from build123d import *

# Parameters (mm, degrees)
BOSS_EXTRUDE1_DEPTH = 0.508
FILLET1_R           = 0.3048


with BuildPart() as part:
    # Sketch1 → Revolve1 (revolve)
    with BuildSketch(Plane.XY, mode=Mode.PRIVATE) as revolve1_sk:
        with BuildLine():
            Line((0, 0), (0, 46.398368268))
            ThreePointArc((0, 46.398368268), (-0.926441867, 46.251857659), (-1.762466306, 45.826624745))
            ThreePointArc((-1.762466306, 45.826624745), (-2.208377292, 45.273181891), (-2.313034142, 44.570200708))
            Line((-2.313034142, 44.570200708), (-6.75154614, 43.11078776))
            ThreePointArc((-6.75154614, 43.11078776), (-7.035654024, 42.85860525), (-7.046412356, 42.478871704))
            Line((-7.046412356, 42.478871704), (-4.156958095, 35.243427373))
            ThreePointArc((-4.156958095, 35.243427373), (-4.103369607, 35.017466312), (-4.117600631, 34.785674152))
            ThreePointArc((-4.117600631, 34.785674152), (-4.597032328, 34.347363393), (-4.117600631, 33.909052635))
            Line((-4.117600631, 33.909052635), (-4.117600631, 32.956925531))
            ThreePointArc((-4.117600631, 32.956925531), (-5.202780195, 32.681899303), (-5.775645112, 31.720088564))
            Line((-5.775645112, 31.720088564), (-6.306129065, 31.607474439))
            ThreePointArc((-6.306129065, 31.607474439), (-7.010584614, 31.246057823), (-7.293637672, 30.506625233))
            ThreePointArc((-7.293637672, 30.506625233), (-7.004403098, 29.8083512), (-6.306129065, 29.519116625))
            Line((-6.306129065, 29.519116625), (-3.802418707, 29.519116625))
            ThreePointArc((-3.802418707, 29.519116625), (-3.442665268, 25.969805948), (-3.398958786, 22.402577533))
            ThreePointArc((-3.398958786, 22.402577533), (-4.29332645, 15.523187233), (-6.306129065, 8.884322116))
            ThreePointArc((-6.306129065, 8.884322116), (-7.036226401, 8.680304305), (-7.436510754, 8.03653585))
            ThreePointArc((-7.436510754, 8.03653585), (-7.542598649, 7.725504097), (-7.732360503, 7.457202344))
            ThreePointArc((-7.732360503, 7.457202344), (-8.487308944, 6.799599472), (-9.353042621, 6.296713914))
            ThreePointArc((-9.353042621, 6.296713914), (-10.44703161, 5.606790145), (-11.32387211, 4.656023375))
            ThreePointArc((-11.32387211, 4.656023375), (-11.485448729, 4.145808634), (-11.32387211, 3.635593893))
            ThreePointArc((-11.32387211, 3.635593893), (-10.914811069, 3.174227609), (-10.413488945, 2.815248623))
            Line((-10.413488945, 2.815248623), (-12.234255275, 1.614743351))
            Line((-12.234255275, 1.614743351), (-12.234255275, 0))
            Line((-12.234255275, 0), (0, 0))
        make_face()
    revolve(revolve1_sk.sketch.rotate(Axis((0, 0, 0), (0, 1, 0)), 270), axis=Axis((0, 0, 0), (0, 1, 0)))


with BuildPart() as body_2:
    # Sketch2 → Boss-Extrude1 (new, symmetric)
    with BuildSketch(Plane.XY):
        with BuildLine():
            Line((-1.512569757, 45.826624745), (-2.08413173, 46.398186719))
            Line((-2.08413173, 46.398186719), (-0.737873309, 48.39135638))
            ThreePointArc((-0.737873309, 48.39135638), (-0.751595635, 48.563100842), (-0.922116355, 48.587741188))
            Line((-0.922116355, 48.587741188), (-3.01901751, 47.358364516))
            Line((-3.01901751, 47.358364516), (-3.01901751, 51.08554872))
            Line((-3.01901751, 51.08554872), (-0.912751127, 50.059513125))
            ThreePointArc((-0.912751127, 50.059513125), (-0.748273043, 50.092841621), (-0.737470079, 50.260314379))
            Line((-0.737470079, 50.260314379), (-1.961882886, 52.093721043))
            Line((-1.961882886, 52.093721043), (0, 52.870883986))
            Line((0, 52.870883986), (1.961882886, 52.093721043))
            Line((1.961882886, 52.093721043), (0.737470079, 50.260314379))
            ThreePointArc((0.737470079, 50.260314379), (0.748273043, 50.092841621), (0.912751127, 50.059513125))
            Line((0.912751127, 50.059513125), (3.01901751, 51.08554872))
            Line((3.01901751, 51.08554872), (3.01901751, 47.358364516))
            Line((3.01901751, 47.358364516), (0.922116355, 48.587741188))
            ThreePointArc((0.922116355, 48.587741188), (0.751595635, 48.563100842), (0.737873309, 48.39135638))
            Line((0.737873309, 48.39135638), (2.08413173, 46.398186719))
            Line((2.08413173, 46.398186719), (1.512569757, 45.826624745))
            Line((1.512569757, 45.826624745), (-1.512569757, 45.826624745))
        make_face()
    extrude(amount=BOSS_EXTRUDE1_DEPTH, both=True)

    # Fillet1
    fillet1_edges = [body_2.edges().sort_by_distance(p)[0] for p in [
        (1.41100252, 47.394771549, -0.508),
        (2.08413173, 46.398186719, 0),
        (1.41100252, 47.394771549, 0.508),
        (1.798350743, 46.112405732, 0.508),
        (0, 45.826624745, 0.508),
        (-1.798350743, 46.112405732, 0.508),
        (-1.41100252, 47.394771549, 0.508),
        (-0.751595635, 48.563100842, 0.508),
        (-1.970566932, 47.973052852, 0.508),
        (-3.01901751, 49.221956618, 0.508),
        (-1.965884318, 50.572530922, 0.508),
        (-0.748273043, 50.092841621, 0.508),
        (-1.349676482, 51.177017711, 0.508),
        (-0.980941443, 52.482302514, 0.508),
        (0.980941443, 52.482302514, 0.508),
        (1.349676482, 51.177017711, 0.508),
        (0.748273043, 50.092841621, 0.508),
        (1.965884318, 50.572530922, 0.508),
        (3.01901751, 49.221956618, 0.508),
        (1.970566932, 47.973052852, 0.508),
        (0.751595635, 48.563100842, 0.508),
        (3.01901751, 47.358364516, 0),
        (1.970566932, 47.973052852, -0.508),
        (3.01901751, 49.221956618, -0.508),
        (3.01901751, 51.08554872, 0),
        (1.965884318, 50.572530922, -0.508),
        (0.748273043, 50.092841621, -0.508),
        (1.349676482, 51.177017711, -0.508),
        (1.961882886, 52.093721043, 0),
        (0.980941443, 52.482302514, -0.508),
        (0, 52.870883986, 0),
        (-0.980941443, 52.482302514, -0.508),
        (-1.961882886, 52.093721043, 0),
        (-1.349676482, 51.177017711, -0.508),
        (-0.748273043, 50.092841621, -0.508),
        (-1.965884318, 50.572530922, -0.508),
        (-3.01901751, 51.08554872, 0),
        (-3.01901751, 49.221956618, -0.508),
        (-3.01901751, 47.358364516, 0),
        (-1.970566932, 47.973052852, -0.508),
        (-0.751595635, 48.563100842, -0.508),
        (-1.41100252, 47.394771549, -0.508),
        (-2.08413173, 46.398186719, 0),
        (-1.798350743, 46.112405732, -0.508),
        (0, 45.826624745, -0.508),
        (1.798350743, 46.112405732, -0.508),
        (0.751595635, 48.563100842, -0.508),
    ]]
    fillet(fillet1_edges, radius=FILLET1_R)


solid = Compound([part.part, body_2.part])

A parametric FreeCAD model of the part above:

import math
import FreeCAD as App
import Part
import Sketcher

V = App.Vector
Q = App.Units.Quantity


def edges_at(feature, points):
    """Names of the edges that pass closest to the given points."""
    edges = feature.Shape.Edges
    near = lambda p: min(range(len(edges)), key=lambda i: edges[i].distToShape(Part.Vertex(*p))[0])
    return sorted({f"Edge{near(p) + 1}" for p in points})

doc = App.newDocument("Part")
body = doc.addObject("PartDesign::Body", "Body")

sketch1 = doc.addObject("Sketcher::SketchObject", "Sketch")
body.addObject(sketch1)
sketch1.AttachmentSupport = (doc.XY_Plane, [""])
sketch1.MapMode = "FlatFace"
sketch1.addGeometry(Part.LineSegment(V(0, 0, 0), V(0, 46.398368, 0)), False)
sketch1.addGeometry(Part.ArcOfCircle(Part.Circle(V(0, 43.395992, 0), V(0, 0, 1), 3.002376), math.radians(90), math.radians(125.946094)), False)
sketch1.addGeometry(Part.ArcOfCircle(Part.Circle(V(-0.966593, 44.729029, 0), V(0, 0, 1), 1.355776), math.radians(125.946094), math.radians(186.727625)), False)
sketch1.addGeometry(Part.LineSegment(V(-2.313034, 44.570201, 0), V(-6.751546, 43.110788, 0)), False)
sketch1.addGeometry(Part.ArcOfCircle(Part.Circle(V(-6.602109, 42.656303, 0), V(0, 0, 1), 0.478422), math.radians(108.201217), math.radians(201.769157)), False)
sketch1.addGeometry(Part.LineSegment(V(-7.046412, 42.478872, 0), V(-4.156958, 35.243427, 0)), False)
sketch1.addGeometry(Part.ArcOfCircle(Part.Circle(V(-4.892735, 34.949597, 0), V(0, 0, 1), 0.792278), math.radians(-11.940786), math.radians(21.769158)), False)
sketch1.addGeometry(Part.ArcOfCircle(Part.Circle(V(-4.156958, 34.347363, 0), V(0, 0, 1), 0.440074), math.radians(84.868971), math.radians(275.131029)), False)
sketch1.addGeometry(Part.LineSegment(V(-4.117601, 33.909053, 0), V(-4.117601, 32.956926, 0)), False)
sketch1.addGeometry(Part.ArcOfCircle(Part.Circle(V(-4.328204, 31.509485, 0), V(0, 0, 1), 1.462682), math.radians(81.721513), math.radians(171.721513)), False)
sketch1.addGeometry(Part.LineSegment(V(-5.775645, 31.720089, 0), V(-6.306129, 31.607474, 0)), False)
sketch1.addGeometry(Part.ArcOfCircle(Part.Circle(V(-6.186284, 30.506625, 0), V(0, 0, 1), 1.107353), math.radians(96.213086), math.radians(180)), False)
sketch1.addGeometry(Part.ArcOfCircle(Part.Circle(V(-6.306129, 30.506625, 0), V(0, 0, 1), 0.987509), math.radians(180), math.radians(270)), False)
sketch1.addGeometry(Part.LineSegment(V(-6.306129, 29.519117, 0), V(-3.802419, 29.519117, 0)), False)
sketch1.addGeometry(Part.ArcOfCircle(Part.Circle(V(-43.583073, 23.694115, 0), V(0, 0, 1), 40.204864), math.radians(-1.840881), math.radians(8.330505)), False)
sketch1.addGeometry(Part.ArcOfCircle(Part.Circle(V(-45.420914, 24.367886, 0), V(0, 0, 1), 42.067888), math.radians(-21.596106), math.radians(-2.677693)), False)
sketch1.addGeometry(Part.ArcOfCircle(Part.Circle(V(-6.408963, 7.843953, 0), V(0, 0, 1), 1.045439), math.radians(84.354995), math.radians(169.3848)), False)
sketch1.addGeometry(Part.ArcOfCircle(Part.Circle(V(-8.5663, 8.24828, 0), V(0, 0, 1), 1.149461), math.radians(-43.489112), math.radians(-10.6152)), False)
sketch1.addGeometry(Part.ArcOfCircle(Part.Circle(V(-11.554069, 11.082488, 0), V(0, 0, 1), 5.267651), math.radians(-65.30182), math.radians(-43.489112)), False)
sketch1.addGeometry(Part.ArcOfCircle(Part.Circle(V(-7.293638, 1.818872, 0), V(0, 0, 1), 4.928714), math.radians(114.69818), math.radians(144.855723)), False)
sketch1.addGeometry(Part.ArcOfCircle(Part.Circle(V(-10.599101, 4.145809, 0), V(0, 0, 1), 0.886348), math.radians(144.855723), math.radians(215.144277)), False)
sketch1.addGeometry(Part.ArcOfCircle(Part.Circle(V(-9.068208, 5.223507, 0), V(0, 0, 1), 2.75853), math.radians(-144.855723), math.radians(-119.188235)), False)
sketch1.addGeometry(Part.LineSegment(V(-10.413489, 2.815249, 0), V(-12.234255, 1.614743, 0)), False)
sketch1.addGeometry(Part.LineSegment(V(-12.234255, 1.614743, 0), V(-12.234255, 0, 0)), False)
sketch1.addGeometry(Part.LineSegment(V(-12.234255, 0, 0), V(0, 0, 0)), False)
sketch1.addConstraint(Sketcher.Constraint("Coincident", 0, 2, 1, 1))
sketch1.addConstraint(Sketcher.Constraint("Coincident", 1, 2, 2, 1))
sketch1.addConstraint(Sketcher.Constraint("Coincident", 2, 2, 3, 1))
sketch1.addConstraint(Sketcher.Constraint("Coincident", 3, 2, 4, 1))
sketch1.addConstraint(Sketcher.Constraint("Coincident", 4, 2, 5, 1))
sketch1.addConstraint(Sketcher.Constraint("Coincident", 5, 2, 6, 2))
sketch1.addConstraint(Sketcher.Constraint("Coincident", 6, 1, 7, 1))
sketch1.addConstraint(Sketcher.Constraint("Coincident", 7, 2, 8, 1))
sketch1.addConstraint(Sketcher.Constraint("Coincident", 8, 2, 9, 1))
sketch1.addConstraint(Sketcher.Constraint("Coincident", 9, 2, 10, 1))
sketch1.addConstraint(Sketcher.Constraint("Coincident", 10, 2, 11, 1))
sketch1.addConstraint(Sketcher.Constraint("Coincident", 11, 2, 12, 1))
sketch1.addConstraint(Sketcher.Constraint("Coincident", 12, 2, 13, 1))
sketch1.addConstraint(Sketcher.Constraint("Coincident", 13, 2, 14, 2))
sketch1.addConstraint(Sketcher.Constraint("Coincident", 14, 1, 15, 2))
sketch1.addConstraint(Sketcher.Constraint("Coincident", 15, 1, 16, 1))
sketch1.addConstraint(Sketcher.Constraint("Coincident", 16, 2, 17, 2))
sketch1.addConstraint(Sketcher.Constraint("Coincident", 17, 1, 18, 2))
sketch1.addConstraint(Sketcher.Constraint("Coincident", 18, 1, 19, 1))
sketch1.addConstraint(Sketcher.Constraint("Coincident", 19, 2, 20, 1))
sketch1.addConstraint(Sketcher.Constraint("Coincident", 20, 2, 21, 1))
sketch1.addConstraint(Sketcher.Constraint("Coincident", 21, 2, 22, 1))
sketch1.addConstraint(Sketcher.Constraint("Coincident", 22, 2, 23, 1))
sketch1.addConstraint(Sketcher.Constraint("Coincident", 23, 2, 24, 1))
sketch1.addConstraint(Sketcher.Constraint("Coincident", 24, 2, 0, 1))
sketch1.addConstraint(Sketcher.Constraint("Vertical", 0))
sketch1.addConstraint(Sketcher.Constraint("Vertical", 8))
sketch1.addConstraint(Sketcher.Constraint("Horizontal", 13))
sketch1.addConstraint(Sketcher.Constraint("Vertical", 23))
sketch1.addConstraint(Sketcher.Constraint("Horizontal", 24))
sketch1.addConstraint(Sketcher.Constraint("Coincident", 24, 2, -1, 1))
sketch1.addConstraint(Sketcher.Constraint("PointOnObject", 1, 3, -2))
sketch1.addConstraint(Sketcher.Constraint("Radius", 9, Q("1.462682 mm")))
sketch1.addConstraint(Sketcher.Constraint("Radius", 12, Q("0.987509 mm")))
sketch1.addConstraint(Sketcher.Constraint("Radius", 16, Q("1.045439 mm")))
sketch1.addConstraint(Sketcher.Constraint("Radius", 17, Q("1.149461 mm")))
sketch1.addConstraint(Sketcher.Constraint("Radius", 18, Q("5.267651 mm")))
sketch1.addConstraint(Sketcher.Constraint("Radius", 21, Q("2.75853 mm")))
sketch1.addConstraint(Sketcher.Constraint("Radius", 1, Q("3.002376 mm")))
sketch1.addConstraint(Sketcher.Constraint("Radius", 2, Q("1.355776 mm")))
sketch1.addConstraint(Sketcher.Constraint("Radius", 4, Q("0.478422 mm")))
sketch1.addConstraint(Sketcher.Constraint("Radius", 6, Q("0.792278 mm")))
sketch1.addConstraint(Sketcher.Constraint("Radius", 7, Q("0.440074 mm")))
sketch1.addConstraint(Sketcher.Constraint("Radius", 11, Q("1.107353 mm")))
sketch1.addConstraint(Sketcher.Constraint("Radius", 14, Q("40.204864 mm")))
sketch1.addConstraint(Sketcher.Constraint("Radius", 15, Q("42.067888 mm")))
sketch1.addConstraint(Sketcher.Constraint("Radius", 19, Q("4.928714 mm")))
sketch1.addConstraint(Sketcher.Constraint("Radius", 20, Q("0.886348 mm")))
sketch1.addConstraint(Sketcher.Constraint("DistanceX", 13, 1, 13, 2, Q("2.50371 mm")))
sketch1.addConstraint(Sketcher.Constraint("DistanceY", 0, 1, 0, 2, Q("46.398368 mm")))
sketch1.addConstraint(Sketcher.Constraint("DistanceX", 17, 3, -1, 1, Q("8.5663 mm")))
sketch1.addConstraint(Sketcher.Constraint("DistanceX", 20, 3, -1, 1, Q("10.599101 mm")))
sketch1.addConstraint(Sketcher.Constraint("DistanceY", -1, 1, 2, 2, Q("44.570201 mm")))
sketch1.addConstraint(Sketcher.Constraint("DistanceX", 6, 1, -1, 1, Q("4.117601 mm")))
sketch1.addConstraint(Sketcher.Constraint("DistanceX", 7, 2, -1, 1, Q("4.117601 mm")))
sketch1.addConstraint(Sketcher.Constraint("DistanceY", 15, 3, 9, 3, Q("7.141599 mm")))
sketch1.addConstraint(Sketcher.Constraint("DistanceY", 20, 3, 21, 3, Q("1.077698 mm")))
sketch1.addConstraint(Sketcher.Constraint("Distance", 5, Q("7.791059 mm")))
sketch1.addConstraint(Sketcher.Constraint("DistanceX", 24, 1, 24, 2, Q("12.234255 mm")))
sketch1.addConstraint(Sketcher.Constraint("DistanceY", 8, 2, 8, 1, Q("0.952127 mm")))
sketch1.addConstraint(Sketcher.Constraint("DistanceY", 23, 2, 23, 1, Q("1.614743 mm")))
sketch1.addConstraint(Sketcher.Constraint("DistanceY", -1, 1, 2, 3, Q("44.729029 mm")))
sketch1.addConstraint(Sketcher.Constraint("DistanceX", 4, 3, -1, 1, Q("6.602109 mm")))
sketch1.addConstraint(Sketcher.Constraint("DistanceX", 7, 3, -1, 1, Q("4.156958 mm")))
sketch1.addConstraint(Sketcher.Constraint("DistanceX", 12, 3, -1, 1, Q("6.306129 mm")))
sketch1.addConstraint(Sketcher.Constraint("DistanceY", -1, 1, 17, 3, Q("8.24828 mm")))
sketch1.addConstraint(Sketcher.Constraint("DistanceX", 18, 3, -1, 1, Q("11.554069 mm")))
sketch1.addConstraint(Sketcher.Constraint("DistanceY", -1, 1, 19, 3, Q("1.818872 mm")))
sketch1.addConstraint(Sketcher.Constraint("DistanceY", -1, 1, 4, 2, Q("42.478872 mm")))
sketch1.addConstraint(Sketcher.Constraint("DistanceX", 5, 2, -1, 1, Q("4.156958 mm")))
sketch1.addConstraint(Sketcher.Constraint("DistanceY", -1, 1, 9, 2, Q("31.720089 mm")))
sketch1.addConstraint(Sketcher.Constraint("DistanceX", 10, 2, -1, 1, Q("6.306129 mm")))
sketch1.addConstraint(Sketcher.Constraint("DistanceX", 12, 2, -1, 1, Q("6.306129 mm")))
sketch1.addConstraint(Sketcher.Constraint("DistanceX", 14, 1, -1, 1, Q("3.398959 mm")))
sketch1.addConstraint(Sketcher.Constraint("DistanceX", 15, 1, -1, 1, Q("6.306129 mm")))
sketch1.addConstraint(Sketcher.Constraint("DistanceX", 16, 2, -1, 1, Q("7.436511 mm")))
sketch1.addConstraint(Sketcher.Constraint("DistanceX", 17, 1, -1, 1, Q("7.732361 mm")))
sketch1.addConstraint(Sketcher.Constraint("DistanceX", 21, 2, -1, 1, Q("10.413489 mm")))
sketch1.addConstraint(Sketcher.Constraint("DistanceY", 4, 3, 1, 3, Q("0.739689 mm")))
sketch1.addConstraint(Sketcher.Constraint("DistanceX", 6, 3, 2, 3, Q("3.926142 mm")))
sketch1.addConstraint(Sketcher.Constraint("DistanceY", 9, 3, 7, 3, Q("2.837879 mm")))
sketch1.addConstraint(Sketcher.Constraint("DistanceY", 11, 3, 9, 3, Q("1.00286 mm")))
sketch1.addConstraint(Sketcher.Constraint("DistanceY", 12, 3, 9, 3, Q("1.00286 mm")))
sketch1.addConstraint(Sketcher.Constraint("DistanceY", 14, 3, 12, 3, Q("6.812511 mm")))
sketch1.addConstraint(Sketcher.Constraint("DistanceY", 4, 3, 1, 2, Q("3.170322 mm")))
sketch1.addConstraint(Sketcher.Constraint("DistanceX", 3, 2, 2, 2, Q("4.438512 mm")))
sketch1.addConstraint(Sketcher.Constraint("DistanceY", 11, 2, 10, 2, Q("1.100849 mm")))
sketch1.addConstraint(Sketcher.Constraint("DistanceY", 18, 1, 17, 1, Q("1.160488 mm")))
sketch1.addConstraint(Sketcher.Constraint("DistanceX", 19, 2, 20, 3, Q("0.724771 mm")))
sketch1.addConstraint(Sketcher.Constraint("DistanceX", 20, 2, 20, 3, Q("0.724771 mm")))
revolution = doc.addObject("PartDesign::Revolution", "Revolution")
body.addObject(revolution)
revolution.Profile = sketch1
revolution.ReferenceAxis = (sketch1, ["V_Axis"])
revolution.Angle = 360
body2 = doc.addObject("PartDesign::Body", "Body001")

sketch2 = doc.addObject("Sketcher::SketchObject", "Sketch001")
body2.addObject(sketch2)
sketch2.AttachmentSupport = (doc.getObject("XY_Plane001"), [""])
sketch2.MapMode = "FlatFace"
sketch2.addGeometry(Part.LineSegment(V(-2.08, 46.4, 0), V(-1.51, 45.83, 0)), False)
sketch2.addGeometry(Part.LineSegment(V(-1.51, 45.83, 0), V(1.51, 45.83, 0)), False)
sketch2.addGeometry(Part.LineSegment(V(1.51, 45.83, 0), V(2.08, 46.4, 0)), False)
sketch2.addGeometry(Part.LineSegment(V(2.08, 46.4, 0), V(0.74, 48.39, 0)), False)
sketch2.addGeometry(Part.ArcOfCircle(Part.Circle(V(0.85, 48.47, 0), V(0, 0, 1), 0.14), math.radians(60), math.radians(214)), False)
sketch2.addGeometry(Part.LineSegment(V(0.92, 48.59, 0), V(3.02, 47.36, 0)), False)
sketch2.addGeometry(Part.LineSegment(V(3.02, 47.36, 0), V(3.02, 51.09, 0)), False)
sketch2.addGeometry(Part.LineSegment(V(3.02, 51.09, 0), V(0.91, 50.06, 0)), False)
sketch2.addGeometry(Part.ArcOfCircle(Part.Circle(V(0.85, 50.18, 0), V(0, 0, 1), 0.14), math.radians(146), math.radians(296)), False)
sketch2.addGeometry(Part.LineSegment(V(0.74, 50.26, 0), V(1.96, 52.09, 0)), False)
sketch2.addGeometry(Part.LineSegment(V(1.96, 52.09, 0), V(0, 52.87, 0)), False)
sketch2.addGeometry(Part.LineSegment(V(0, 52.87, 0), V(-1.96, 52.09, 0)), False)
sketch2.addGeometry(Part.LineSegment(V(-1.96, 52.09, 0), V(-0.74, 50.26, 0)), False)
sketch2.addGeometry(Part.ArcOfCircle(Part.Circle(V(-0.85, 50.18, 0), V(0, 0, 1), 0.14), math.radians(-116), math.radians(34)), False)
sketch2.addGeometry(Part.LineSegment(V(-0.91, 50.06, 0), V(-3.02, 51.09, 0)), False)
sketch2.addGeometry(Part.LineSegment(V(-3.02, 51.09, 0), V(-3.02, 47.36, 0)), False)
sketch2.addGeometry(Part.LineSegment(V(-3.02, 47.36, 0), V(-0.92, 48.59, 0)), False)
sketch2.addGeometry(Part.ArcOfCircle(Part.Circle(V(-0.85, 48.47, 0), V(0, 0, 1), 0.14), math.radians(-34), math.radians(120)), False)
sketch2.addGeometry(Part.LineSegment(V(-0.74, 48.39, 0), V(-2.08, 46.4, 0)), False)
sketch2.addConstraint(Sketcher.Constraint("Coincident", 0, 2, 1, 1))
sketch2.addConstraint(Sketcher.Constraint("Coincident", 1, 2, 2, 1))
sketch2.addConstraint(Sketcher.Constraint("Coincident", 2, 2, 3, 1))
sketch2.addConstraint(Sketcher.Constraint("Tangent", 3, 2, 4, 2))
sketch2.addConstraint(Sketcher.Constraint("Tangent", 4, 1, 5, 1))
sketch2.addConstraint(Sketcher.Constraint("Coincident", 5, 2, 6, 1))
sketch2.addConstraint(Sketcher.Constraint("Coincident", 6, 2, 7, 1))
sketch2.addConstraint(Sketcher.Constraint("Tangent", 7, 2, 8, 2))
sketch2.addConstraint(Sketcher.Constraint("Tangent", 8, 1, 9, 1))
sketch2.addConstraint(Sketcher.Constraint("Coincident", 9, 2, 10, 1))
sketch2.addConstraint(Sketcher.Constraint("Coincident", 10, 2, 11, 1))
sketch2.addConstraint(Sketcher.Constraint("Coincident", 11, 2, 12, 1))
sketch2.addConstraint(Sketcher.Constraint("Tangent", 12, 2, 13, 2))
sketch2.addConstraint(Sketcher.Constraint("Tangent", 13, 1, 14, 1))
sketch2.addConstraint(Sketcher.Constraint("Coincident", 14, 2, 15, 1))
sketch2.addConstraint(Sketcher.Constraint("Coincident", 15, 2, 16, 1))
sketch2.addConstraint(Sketcher.Constraint("Tangent", 16, 2, 17, 2))
sketch2.addConstraint(Sketcher.Constraint("Tangent", 17, 1, 18, 1))
sketch2.addConstraint(Sketcher.Constraint("Coincident", 18, 2, 0, 1))
sketch2.addConstraint(Sketcher.Constraint("Horizontal", 1))
sketch2.addConstraint(Sketcher.Constraint("Vertical", 6))
sketch2.addConstraint(Sketcher.Constraint("Vertical", 15))
sketch2.addConstraint(Sketcher.Constraint("Equal", 4, 8))
sketch2.addConstraint(Sketcher.Constraint("Equal", 8, 13))
sketch2.addConstraint(Sketcher.Constraint("Equal", 13, 17))
sketch2.addConstraint(Sketcher.Constraint("Symmetric", 8, 3, 13, 3, -2))
sketch2.addConstraint(Sketcher.Constraint("Symmetric", 4, 3, 17, 3, -2))
sketch2.addConstraint(Sketcher.Constraint("Symmetric", 9, 2, 11, 2, -2))
sketch2.addConstraint(Sketcher.Constraint("Symmetric", 6, 2, 14, 2, -2))
sketch2.addConstraint(Sketcher.Constraint("Symmetric", 2, 2, 18, 2, -2))
sketch2.addConstraint(Sketcher.Constraint("PointOnObject", 10, 2, -2))
sketch2.addConstraint(Sketcher.Constraint("Perpendicular", 0, 2))
sketch2.addConstraint(Sketcher.Constraint("Horizontal", 5, 2, 15, 2))
sketch2.addConstraint(Sketcher.Constraint("Vertical", 4, 3, 8, 3))
sketch2.addConstraint(Sketcher.Constraint("Equal", 0, 2))
sketch2.addConstraint(Sketcher.Constraint("DistanceX", 1, 1, 1, 2, Q("0.1191 in")))
sketch2.addConstraint(Sketcher.Constraint("Radius", 4, Q("0.138067 mm")))
sketch2.addConstraint(Sketcher.Constraint("DistanceY", 4, 3, 8, 3, Q("1.715001 mm")))
sketch2.addConstraint(Sketcher.Constraint("DistanceX", 0, 2, 2, 2, Q("3.596701 mm")))
sketch2.addConstraint(Sketcher.Constraint("DistanceX", 4, 1, 5, 2, Q("2.096901 mm")))
sketch2.addConstraint(Sketcher.Constraint("DistanceY", 7, 2, 8, 1, Q("0.200801 mm")))
sketch2.addConstraint(Sketcher.Constraint("Distance", 3, Q("2.405231 mm")))
sketch2.addConstraint(Sketcher.Constraint("Distance", 9, Q("2.204669 mm")))
sketch2.addConstraint(Sketcher.Constraint("DistanceY", 6, 1, 6, 2, Q("3.727184 mm")))
sketch2.addConstraint(Sketcher.Constraint("DistanceY", -1, 1, 4, 1, Q("48.587741 mm")))
sketch2.addConstraint(Sketcher.Constraint("DistanceY", -1, 1, 6, 2, Q("51.085549 mm")))
sketch2.addConstraint(Sketcher.Constraint("DistanceX", -1, 1, 7, 2, Q("0.912751 mm")))
sketch2.addConstraint(Sketcher.Constraint("DistanceY", 8, 1, 10, 2, Q("2.61057 mm")))
pad1 = doc.addObject("PartDesign::Pad", "Pad")
body2.addObject(pad1)
pad1.Profile = sketch2
pad1.Length = Q("0.04 in")
pad1.Midplane = True
doc.recompute()

fillet = doc.addObject("PartDesign::Fillet", "Fillet")
body2.addObject(fillet)
fillet.Base = (pad1, edges_at(pad1, [
    (1.411, 47.395, -0.508),
    (2.084, 46.398, 0),
    (1.411, 47.395, 0.508),
    (1.798, 46.112, 0.508),
    (0, 45.827, 0.508),
    (-1.798, 46.112, 0.508),
    (-1.411, 47.395, 0.508),
    (-0.752, 48.563, 0.508),
    (-1.971, 47.973, 0.508),
    (-3.019, 49.222, 0.508),
    (-1.966, 50.573, 0.508),
    (-0.748, 50.093, 0.508),
    (-1.35, 51.177, 0.508),
    (-0.981, 52.482, 0.508),
    (0.981, 52.482, 0.508),
    (1.35, 51.177, 0.508),
    (0.748, 50.093, 0.508),
    (1.966, 50.573, 0.508),
    (3.019, 49.222, 0.508),
    (1.971, 47.973, 0.508),
    (0.752, 48.563, 0.508),
    (3.019, 47.358, 0),
    (1.971, 47.973, -0.508),
    (3.019, 49.222, -0.508),
    (3.019, 51.086, 0),
    (1.966, 50.573, -0.508),
    (0.748, 50.093, -0.508),
    (1.35, 51.177, -0.508),
    (1.962, 52.094, 0),
    (0.981, 52.482, -0.508),
    (0, 52.871, 0),
    (-0.981, 52.482, -0.508),
    (-1.962, 52.094, 0),
    (-1.35, 51.177, -0.508),
    (-0.748, 50.093, -0.508),
    (-1.966, 50.573, -0.508),
    (-3.019, 51.086, 0),
    (-3.019, 49.222, -0.508),
    (-3.019, 47.358, 0),
    (-1.971, 47.973, -0.508),
    (-0.752, 48.563, -0.508),
    (-1.411, 47.395, -0.508),
    (-2.084, 46.398, 0),
    (-1.798, 46.112, -0.508),
    (0, 45.827, -0.508),
    (1.798, 46.112, -0.508),
    (0.752, 48.563, -0.508),
]))
fillet.Radius = Q("0.012 in")

doc.recompute()
